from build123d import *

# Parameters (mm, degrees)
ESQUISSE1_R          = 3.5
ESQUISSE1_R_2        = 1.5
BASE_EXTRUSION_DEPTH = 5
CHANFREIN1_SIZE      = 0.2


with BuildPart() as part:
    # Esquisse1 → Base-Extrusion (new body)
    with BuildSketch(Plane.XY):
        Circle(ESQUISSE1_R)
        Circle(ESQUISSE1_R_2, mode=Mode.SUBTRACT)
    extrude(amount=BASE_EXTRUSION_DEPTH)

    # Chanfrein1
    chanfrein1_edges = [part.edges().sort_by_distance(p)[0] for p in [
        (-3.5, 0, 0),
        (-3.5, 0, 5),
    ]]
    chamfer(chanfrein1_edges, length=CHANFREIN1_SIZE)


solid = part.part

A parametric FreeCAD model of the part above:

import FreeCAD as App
import Part
import Sketcher
from FreeCAD import Vector


def edges_at(feature, points):
    """Names of the edges that pass closest to the given points."""
    edges = feature.Shape.Edges
    near = lambda p: min(range(len(edges)), key=lambda i: edges[i].distToShape(Part.Vertex(*p))[0])
    return sorted({f"Edge{near(p) + 1}" for p in points})

doc = App.newDocument("Part")
body = doc.addObject("PartDesign::Body", "Body")

sketch1 = body.newObject("Sketcher::SketchObject", "Sketch")
sketch1.AttachmentSupport = (doc.getObject("XY_Plane"), [""])
sketch1.MapMode = "FlatFace"
sketch1.addGeometry([
    Part.Circle(Vector(0, 0, 0), Vector(0, 0, 1), 3.5),
    Part.Circle(Vector(0, 0, 0), Vector(0, 0, 1), 1.5),
], False)
sketch1.addConstraint([
    Sketcher.Constraint("Coincident", 0, 3, -1, 1),
    Sketcher.Constraint("Coincident", 1, 3, -1, 1),
    Sketcher.Constraint("Diameter", 0, 7.0),
    Sketcher.Constraint("Diameter", 1, 3.0),
])
pad1 = body.newObject("PartDesign::Pad", "Pad")
pad1.Profile = sketch1
pad1.Length = 5
doc.recompute()

chamfer = body.newObject("PartDesign::Chamfer", "Chamfer")
chamfer.Base = (pad1, edges_at(pad1, [(-3.5, 0, 0), (-3.5, 0, 5)]))
chamfer.Size = 0.2

doc.recompute()
